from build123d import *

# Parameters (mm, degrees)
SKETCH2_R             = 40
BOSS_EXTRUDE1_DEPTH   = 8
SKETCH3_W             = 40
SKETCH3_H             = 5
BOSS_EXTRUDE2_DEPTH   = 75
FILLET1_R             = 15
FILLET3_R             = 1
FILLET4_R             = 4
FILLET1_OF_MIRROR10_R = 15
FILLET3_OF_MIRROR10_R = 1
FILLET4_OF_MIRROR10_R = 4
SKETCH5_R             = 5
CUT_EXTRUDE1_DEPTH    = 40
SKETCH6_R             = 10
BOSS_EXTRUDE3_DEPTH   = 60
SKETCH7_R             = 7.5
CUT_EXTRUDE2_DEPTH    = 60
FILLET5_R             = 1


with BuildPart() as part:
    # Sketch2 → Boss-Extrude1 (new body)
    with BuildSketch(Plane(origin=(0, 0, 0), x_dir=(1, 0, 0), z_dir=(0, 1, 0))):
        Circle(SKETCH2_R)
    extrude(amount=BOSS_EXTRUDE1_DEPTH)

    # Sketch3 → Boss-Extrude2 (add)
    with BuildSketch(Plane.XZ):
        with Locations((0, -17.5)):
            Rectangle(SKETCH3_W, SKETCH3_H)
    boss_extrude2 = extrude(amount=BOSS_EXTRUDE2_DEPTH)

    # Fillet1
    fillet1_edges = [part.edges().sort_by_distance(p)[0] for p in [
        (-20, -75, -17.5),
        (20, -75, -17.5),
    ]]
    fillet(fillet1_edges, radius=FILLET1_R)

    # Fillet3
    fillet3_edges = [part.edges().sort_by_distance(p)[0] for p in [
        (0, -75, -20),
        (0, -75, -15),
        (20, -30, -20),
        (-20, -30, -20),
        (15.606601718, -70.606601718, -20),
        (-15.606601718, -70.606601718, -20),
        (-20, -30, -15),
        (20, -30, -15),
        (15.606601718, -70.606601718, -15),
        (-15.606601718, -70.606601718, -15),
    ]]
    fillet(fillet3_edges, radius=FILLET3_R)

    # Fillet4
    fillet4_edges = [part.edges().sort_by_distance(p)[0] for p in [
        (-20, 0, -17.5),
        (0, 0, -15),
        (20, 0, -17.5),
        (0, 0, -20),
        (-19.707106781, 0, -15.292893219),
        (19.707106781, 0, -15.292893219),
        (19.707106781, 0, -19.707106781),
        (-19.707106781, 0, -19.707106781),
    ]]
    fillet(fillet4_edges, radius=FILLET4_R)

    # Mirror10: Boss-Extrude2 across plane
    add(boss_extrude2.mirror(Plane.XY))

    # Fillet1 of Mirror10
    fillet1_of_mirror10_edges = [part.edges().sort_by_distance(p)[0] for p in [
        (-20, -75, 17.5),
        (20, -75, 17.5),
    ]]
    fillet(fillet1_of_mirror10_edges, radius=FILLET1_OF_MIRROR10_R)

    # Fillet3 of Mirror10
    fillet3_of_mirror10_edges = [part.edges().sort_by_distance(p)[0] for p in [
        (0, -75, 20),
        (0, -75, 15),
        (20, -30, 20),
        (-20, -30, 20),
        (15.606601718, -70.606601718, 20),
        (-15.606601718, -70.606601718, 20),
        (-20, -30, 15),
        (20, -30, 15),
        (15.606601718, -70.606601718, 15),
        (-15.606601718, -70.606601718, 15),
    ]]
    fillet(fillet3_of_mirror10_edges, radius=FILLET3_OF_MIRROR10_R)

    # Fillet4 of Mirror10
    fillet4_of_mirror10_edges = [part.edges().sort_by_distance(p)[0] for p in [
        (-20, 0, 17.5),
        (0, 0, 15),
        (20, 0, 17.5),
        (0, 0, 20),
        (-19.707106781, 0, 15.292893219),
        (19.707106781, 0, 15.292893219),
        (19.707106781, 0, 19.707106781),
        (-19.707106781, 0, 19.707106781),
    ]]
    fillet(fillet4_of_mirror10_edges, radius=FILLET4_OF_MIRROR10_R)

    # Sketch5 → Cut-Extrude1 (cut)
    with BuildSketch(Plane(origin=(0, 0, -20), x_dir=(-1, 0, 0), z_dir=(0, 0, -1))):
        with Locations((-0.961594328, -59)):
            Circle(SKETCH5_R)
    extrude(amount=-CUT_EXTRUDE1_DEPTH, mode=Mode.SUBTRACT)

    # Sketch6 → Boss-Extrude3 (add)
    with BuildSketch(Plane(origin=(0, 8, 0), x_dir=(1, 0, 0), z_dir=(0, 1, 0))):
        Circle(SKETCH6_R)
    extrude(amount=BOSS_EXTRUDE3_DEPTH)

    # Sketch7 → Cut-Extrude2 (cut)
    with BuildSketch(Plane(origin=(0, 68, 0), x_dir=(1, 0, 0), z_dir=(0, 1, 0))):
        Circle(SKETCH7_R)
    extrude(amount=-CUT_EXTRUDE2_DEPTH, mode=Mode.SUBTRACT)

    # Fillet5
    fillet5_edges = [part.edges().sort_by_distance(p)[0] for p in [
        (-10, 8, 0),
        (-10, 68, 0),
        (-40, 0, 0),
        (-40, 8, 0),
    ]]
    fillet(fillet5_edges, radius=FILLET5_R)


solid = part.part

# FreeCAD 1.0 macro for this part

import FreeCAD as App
import Part
import Sketcher
Q = App.Units.Quantity


def edges_at(feature, points):
    """Names of the edges that pass closest to the given points."""
    edges = feature.Shape.Edges
    near = lambda p: min(range(len(edges)), key=lambda i: edges[i].distToShape(Part.Vertex(*p))[0])
    return sorted({f"Edge{near(p) + 1}" for p in points})


def add_polygon(sketch, points):
    """Adds a closed chain of lines whose ends are joined by coincident constraints."""
    first, n = sketch.GeometryCount, len(points)
    for a, b in zip(points, points[1:] + points[:1]):
        sketch.addGeometry(Part.LineSegment(App.Vector(*a, 0), App.Vector(*b, 0)), False)
    for i in range(n):
        sketch.addConstraint(Sketcher.Constraint("Coincident", first + i, 2, first + (i + 1) % n, 1))

doc = App.newDocument("Part")
body = doc.addObject("PartDesign::Body", "Body")

# Sketch on XZ plane
sketch1 = body.newObject("Sketcher::SketchObject", "Sketch")
sketch1.AttachmentSupport = (doc.getObject("XZ_Plane"), [""])
sketch1.MapMode = "FlatFace"
sketch1.addGeometry(Part.Circle(App.Vector(0, 0, 0), App.Vector(0, 0, 1), 40), False)
sketch1.addConstraint([
    Sketcher.Constraint("Coincident", 0, 3, -1, 1),
    Sketcher.Constraint("Diameter", 0, Q("80 mm")),
])
pad1 = body.newObject("PartDesign::Pad", "Pad")
pad1.Profile = sketch1
pad1.Length = 8
pad1.Reversed = True

# Sketch on XZ plane
sketch2 = body.newObject("Sketcher::SketchObject", "Sketch001")
sketch2.AttachmentSupport = (doc.getObject("XZ_Plane"), [""])
sketch2.MapMode = "FlatFace"
add_polygon(sketch2, [(-20, -15), (-20, -20), (20, -20), (20, -15)])  # lines 0-3
sketch2.addConstraint([
    Sketcher.Constraint("Vertical", 0),
    Sketcher.Constraint("Horizontal", 1),
    Sketcher.Constraint("Vertical", 2),
    Sketcher.Constraint("Horizontal", 3),
    Sketcher.Constraint("DistanceX", 1, 1, 1, 2, Q("40 mm")),
    Sketcher.Constraint("DistanceY", 0, 2, 0, 1, Q("5 mm")),
    Sketcher.Constraint("DistanceX", 0, 2, -1, 1, Q("20 mm")),
    Sketcher.Constraint("DistanceY", 0, 2, -1, 1, Q("20 mm")),
])
pad2 = body.newObject("PartDesign::Pad", "Pad001")
pad2.Profile = sketch2
pad2.Length = 75
doc.recompute()

fillet = body.newObject("PartDesign::Fillet", "Fillet")
fillet.Base = (pad2, edges_at(pad2, [(-20, -75, -17.5), (20, -75, -17.5)]))
fillet.Radius = 15
doc.recompute()

fillet2 = body.newObject("PartDesign::Fillet", "Fillet001")
fillet2.Base = (fillet, edges_at(fillet, [
    (0, -75, -20),
    (0, -75, -15),
    (20, -30, -20),
    (-20, -30, -20),
    (15.607, -70.607, -20),
    (-15.607, -70.607, -20),
    (-20, -30, -15),
    (20, -30, -15),
    (15.607, -70.607, -15),
    (-15.607, -70.607, -15),
]))
fillet2.Radius = 1
doc.recompute()

fillet3 = body.newObject("PartDesign::Fillet", "Fillet002")
fillet3.Base = (fillet2, edges_at(fillet2, [
    (-20, 0, -17.5),
    (0, 0, -15),
    (20, 0, -17.5),
    (0, 0, -20),
    (-19.707, 0, -15.293),
    (19.707, 0, -15.293),
    (19.707, 0, -19.707),
    (-19.707, 0, -19.707),
]))
fillet3.Radius = 4
doc.recompute()

mirrored = body.newObject("PartDesign::Mirrored", "Mirrored")
mirrored.Originals = [pad2]
mirrored.MirrorPlane = (doc.getObject("XY_Plane"), [""])
body.Tip = mirrored
doc.recompute()

fillet4 = body.newObject("PartDesign::Fillet", "Fillet003")
fillet4.Base = (mirrored, edges_at(mirrored, [(-20, -75, 17.5), (20, -75, 17.5)]))
fillet4.Radius = 15
doc.recompute()

fillet5 = body.newObject("PartDesign::Fillet", "Fillet004")
fillet5.Base = (fillet4, edges_at(fillet4, [
    (0, -75, 20),
    (0, -75, 15),
    (20, -30, 20),
    (-20, -30, 20),
    (15.607, -70.607, 20),
    (-15.607, -70.607, 20),
    (-20, -30, 15),
    (20, -30, 15),
    (15.607, -70.607, 15),
    (-15.607, -70.607, 15),
]))
fillet5.Radius = 1
doc.recompute()

fillet6 = body.newObject("PartDesign::Fillet", "Fillet005")
fillet6.Base = (fillet5, edges_at(fillet5, [
    (-20, 0, 17.5),
    (0, 0, 15),
    (20, 0, 17.5),
    (0, 0, 20),
    (-19.707, 0, 15.293),
    (19.707, 0, 15.293),
    (19.707, 0, 19.707),
    (-19.707, 0, 19.707),
]))
fillet6.Radius = 4

# Sketch on XY plane
sketch3 = body.newObject("Sketcher::SketchObject", "Sketch002")
sketch3.AttachmentSupport = (doc.getObject("XY_Plane"), [""])
sketch3.MapMode = "FlatFace"
sketch3.AttachmentOffset = App.Placement(App.Vector(0, 0, -20), App.Rotation())
sketch3.addGeometry(Part.Circle(App.Vector(1, -59, 0), App.Vector(0, 0, 1), 5), False)
sketch3.addConstraint([
    Sketcher.Constraint("Diameter", 0, Q("10 mm")),
    Sketcher.Constraint("DistanceY", 0, 3, -1, 1, Q("59 mm")),
    Sketcher.Constraint("DistanceX", -1, 1, 0, 3, Q("0.961594 mm")),
])
pocket1 = body.newObject("PartDesign::Pocket", "Pocket")
pocket1.Profile = sketch3
pocket1.Length = 40
pocket1.Reversed = True

# Sketch on XZ plane
sketch4 = body.newObject("Sketcher::SketchObject", "Sketch003")
sketch4.AttachmentSupport = (doc.getObject("XZ_Plane"), [""])
sketch4.MapMode = "FlatFace"
sketch4.AttachmentOffset = App.Placement(App.Vector(0, 0, -8), App.Rotation())
sketch4.addGeometry(Part.Circle(App.Vector(0, 0, 0), App.Vector(0, 0, 1), 10), False)
sketch4.addConstraint([
    Sketcher.Constraint("Coincident", 0, 3, -1, 1),
    Sketcher.Constraint("Diameter", 0, Q("20 mm")),
])
pad3 = body.newObject("PartDesign::Pad", "Pad002")
pad3.Profile = sketch4
pad3.Length = 60
pad3.Reversed = True

# Sketch on XZ plane
sketch5 = body.newObject("Sketcher::SketchObject", "Sketch004")
sketch5.AttachmentSupport = (doc.getObject("XZ_Plane"), [""])
sketch5.MapMode = "FlatFace"
sketch5.AttachmentOffset = App.Placement(App.Vector(0, 0, -68), App.Rotation())
sketch5.addGeometry(Part.Circle(App.Vector(0, 0, 0), App.Vector(0, 0, 1), 8), False)
sketch5.addConstraint([
    Sketcher.Constraint("Coincident", 0, 3, -1, 1),
    Sketcher.Constraint("Diameter", 0, Q("15 mm")),
])
pocket2 = body.newObject("PartDesign::Pocket", "Pocket001")
pocket2.Profile = sketch5
pocket2.Length = 60
pocket2.Reversed = True
doc.recompute()

fillet7 = body.newObject("PartDesign::Fillet", "Fillet006")
fillet7.Base = (pocket2, edges_at(pocket2, [
    (-10, 8, 0),
    (-10, 68, 0),
    (-40, 0, 0),
    (-40, 8, 0),
]))
fillet7.Radius = 1

doc.recompute()
